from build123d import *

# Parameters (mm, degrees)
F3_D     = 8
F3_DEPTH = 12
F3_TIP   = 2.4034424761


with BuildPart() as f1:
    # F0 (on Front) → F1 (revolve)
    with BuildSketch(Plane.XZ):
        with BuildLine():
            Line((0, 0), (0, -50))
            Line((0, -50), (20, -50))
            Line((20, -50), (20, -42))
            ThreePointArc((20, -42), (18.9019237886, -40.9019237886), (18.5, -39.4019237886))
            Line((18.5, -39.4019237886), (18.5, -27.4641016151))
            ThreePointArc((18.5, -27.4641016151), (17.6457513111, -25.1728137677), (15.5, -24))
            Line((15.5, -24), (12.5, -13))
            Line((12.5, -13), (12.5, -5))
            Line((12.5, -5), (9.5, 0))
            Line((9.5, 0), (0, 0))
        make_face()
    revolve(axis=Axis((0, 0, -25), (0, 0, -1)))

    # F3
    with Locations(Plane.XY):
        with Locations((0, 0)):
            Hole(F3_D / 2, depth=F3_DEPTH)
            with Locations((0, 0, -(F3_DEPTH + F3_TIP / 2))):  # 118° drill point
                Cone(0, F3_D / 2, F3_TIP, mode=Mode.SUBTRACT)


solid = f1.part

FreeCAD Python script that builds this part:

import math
import FreeCAD as App
import Part
import Sketcher

V = App.Vector

doc = App.newDocument("Part")
body = doc.addObject("PartDesign::Body", "Body")

# Sketch on XZ plane
sketch1 = body.newObject("Sketcher::SketchObject", "Sketch")
sketch1.AttachmentSupport = (doc.getObject("XZ_Plane"), [""])
sketch1.MapMode = "FlatFace"
sketch1.addGeometry([
    Part.LineSegment(V(0, 0, 0), V(0, -50, 0)),  # 0
    Part.LineSegment(V(0, -50, 0), V(20, -50, 0)),  # 1
    Part.LineSegment(V(20, -50, 0), V(20, -42, 0)),  # 2
    Part.ArcOfCircle(Part.Circle(V(21.5, -39.401924, 0), V(0, 0, 1), 3), math.radians(180), math.radians(240)),  # 3
    Part.LineSegment(V(18.5, -39.401924, 0), V(18.5, -27.464102, 0)),  # 4
    Part.ArcOfCircle(Part.Circle(V(15, -27.464102, 0), V(0, 0, 1), 3.5), math.radians(0), math.radians(81.786789)),  # 5
    Part.LineSegment(V(15.5, -24, 0), V(12.5, -13, 0)),  # 6
    Part.LineSegment(V(12.5, -13, 0), V(12.5, -5, 0)),  # 7
    Part.LineSegment(V(12.5, -5, 0), V(9.5, 0, 0)),  # 8
    Part.LineSegment(V(9.5, 0, 0), V(0, 0, 0)),  # 9
], False)
sketch1.addConstraint([
    Sketcher.Constraint("Coincident", 0, 2, 1, 1),
    Sketcher.Constraint("Coincident", 1, 2, 2, 1),
    Sketcher.Constraint("Coincident", 2, 2, 3, 2),
    Sketcher.Constraint("Tangent", 3, 1, 4, 1),
    Sketcher.Constraint("Tangent", 4, 2, 5, 1),
    Sketcher.Constraint("Coincident", 5, 2, 6, 1),
    Sketcher.Constraint("Coincident", 6, 2, 7, 1),
    Sketcher.Constraint("Coincident", 7, 2, 8, 1),
    Sketcher.Constraint("Coincident", 8, 2, 9, 1),
    Sketcher.Constraint("Coincident", 9, 2, 0, 1),
    Sketcher.Constraint("Vertical", 0),
    Sketcher.Constraint("Horizontal", 1),
    Sketcher.Constraint("Vertical", 2),
    Sketcher.Constraint("Vertical", 4),
    Sketcher.Constraint("Vertical", 7),
    Sketcher.Constraint("Horizontal", 9),
    Sketcher.Constraint("Coincident", 9, 2, -1, 1),
    Sketcher.Constraint("Equal", 2, 7),
    Sketcher.Constraint("Radius", 3, 3.0),
    Sketcher.Constraint("Radius", 5, 3.5),
    Sketcher.Constraint("DistanceX", 1, 1, 1, 2, 20.0),
    Sketcher.Constraint("DistanceY", 0, 2, 0, 1, 50.0),
    Sketcher.Constraint("DistanceY", 2, 1, 2, 2, 8.0),
    Sketcher.Constraint("DistanceX", 9, 2, 9, 1, 9.5),
    Sketcher.Constraint("DistanceX", -1, 1, 5, 3, 15.0),
    Sketcher.Constraint("DistanceY", 5, 2, -1, 1, 24.0),
    Sketcher.Constraint("DistanceY", 6, 2, -1, 1, 13.0),
    Sketcher.Constraint("DistanceX", 5, 2, 4, 2, 3.0),
    Sketcher.Constraint("DistanceX", 6, 2, 5, 2, 3.0),
])
revolution = body.newObject("PartDesign::Revolution", "Revolution")
revolution.Profile = sketch1
revolution.ReferenceAxis = (sketch1, ["V_Axis"])
revolution.Angle = 360

# Sketch on XY plane
sketch2 = body.newObject("Sketcher::SketchObject", "Sketch001")
sketch2.AttachmentSupport = (doc.getObject("XY_Plane"), [""])
sketch2.MapMode = "FlatFace"
sketch2.addGeometry(Part.Circle(V(0, 0, 0), V(0, 0, 1), 4), False)
sketch2.addConstraint([
    Sketcher.Constraint("Coincident", 0, 3, -1, 1),
    Sketcher.Constraint("Diameter", 0, 8.0),
])
doc.recompute()
hole = body.newObject("PartDesign::Hole", "Hole")
hole.Profile = sketch2
hole.ThreadType = "None"
hole.Diameter = 8
hole.DepthType = "Dimension"
hole.Depth = 12
hole.DrillPoint = "Angled"
hole.DrillPointAngle = 118

doc.recompute()
